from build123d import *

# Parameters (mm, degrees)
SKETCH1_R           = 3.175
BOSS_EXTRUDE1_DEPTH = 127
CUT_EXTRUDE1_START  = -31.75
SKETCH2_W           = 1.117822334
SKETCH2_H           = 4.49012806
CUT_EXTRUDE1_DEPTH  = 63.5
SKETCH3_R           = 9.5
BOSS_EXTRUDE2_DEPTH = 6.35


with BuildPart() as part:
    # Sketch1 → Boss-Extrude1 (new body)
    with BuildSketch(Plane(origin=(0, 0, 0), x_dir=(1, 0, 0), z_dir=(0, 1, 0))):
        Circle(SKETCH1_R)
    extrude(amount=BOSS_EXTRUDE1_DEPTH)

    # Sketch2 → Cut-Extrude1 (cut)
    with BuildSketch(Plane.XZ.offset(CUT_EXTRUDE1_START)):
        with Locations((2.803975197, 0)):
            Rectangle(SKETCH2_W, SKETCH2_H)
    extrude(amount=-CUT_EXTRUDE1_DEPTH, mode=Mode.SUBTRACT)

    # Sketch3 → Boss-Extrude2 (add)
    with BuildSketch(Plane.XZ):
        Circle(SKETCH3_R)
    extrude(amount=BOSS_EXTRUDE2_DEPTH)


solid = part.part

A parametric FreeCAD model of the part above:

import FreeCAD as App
import Part
import Sketcher
from FreeCAD import Vector
Q = App.Units.Quantity

doc = App.newDocument("Part")
params = doc.addObject("Spreadsheet::Sheet", "Params")
for row, (alias, value) in enumerate([
    ("sketch1_diameter", "0.25 in"),
    ("pad1_length", "5 in"),
    ("pocket1_length", "2.5 in"),
    ("pad2_length", "0.25 in"),
], start=1):
    params.set(f"A{row}", alias)
    params.set(f"B{row}", "=" + value)
    params.setAlias(f"B{row}", alias)

body = doc.addObject("PartDesign::Body", "Body")

# Sketch on XZ plane
sketch1 = body.newObject("Sketcher::SketchObject", "Sketch")
sketch1.AttachmentSupport = (doc.getObject("XZ_Plane"), [""])
sketch1.MapMode = "FlatFace"
sketch1.addGeometry(Part.Circle(Vector(0, 0, 0), Vector(0, 0, 1), 3.2), False)
sketch1.addConstraint([
    Sketcher.Constraint("Coincident", 0, 3, -1, 1),
    Sketcher.Constraint("Diameter", 0, Q("0.25 in")),
])
sketch1.setExpression("Constraints[1]", "Params.sketch1_diameter")
pad1 = body.newObject("PartDesign::Pad", "Pad")
pad1.Profile = sketch1
pad1.setExpression("Length", "Params.pad1_length")
pad1.Reversed = True

# Sketch on XZ plane
sketch2 = body.newObject("Sketcher::SketchObject", "Sketch001")
sketch2.AttachmentSupport = (doc.getObject("XZ_Plane"), [""])
sketch2.MapMode = "FlatFace"
sketch2.AttachmentOffset = App.Placement(Vector(0, 0, -1.25 * 25.4), App.Rotation())
sketch2.addGeometry([
    Part.LineSegment(Vector(2.2, 2.2, 0), Vector(2.2, -2.2, 0)),
    Part.LineSegment(Vector(2.2, -2.2, 0), Vector(3.4, -2.2, 0)),
    Part.LineSegment(Vector(3.4, -2.2, 0), Vector(3.4, 2.2, 0)),
    Part.LineSegment(Vector(3.4, 2.2, 0), Vector(2.2, 2.2, 0)),
], False)
sketch2.addConstraint([
    Sketcher.Constraint("Coincident", 0, 2, 1, 1),
    Sketcher.Constraint("Coincident", 1, 2, 2, 1),
    Sketcher.Constraint("Coincident", 2, 2, 3, 1),
    Sketcher.Constraint("Coincident", 3, 2, 0, 1),
    Sketcher.Constraint("Vertical", 0),
    Sketcher.Constraint("Horizontal", 1),
    Sketcher.Constraint("Vertical", 2),
    Sketcher.Constraint("Horizontal", 3),
    Sketcher.Constraint("DistanceY", 0, 2, 0, 1, Q("4.490128 mm")),
    Sketcher.Constraint("DistanceX", 1, 1, 1, 2, Q("1.117822 mm")),
    Sketcher.Constraint("DistanceX", -1, 1, 0, 2, Q("2.245064 mm")),
    Sketcher.Constraint("DistanceY", 0, 2, -1, 1, Q("2.245064 mm")),
])
pocket1 = body.newObject("PartDesign::Pocket", "Pocket")
pocket1.Profile = sketch2
pocket1.setExpression("Length", "Params.pocket1_length")

# Sketch on XZ plane
sketch3 = body.newObject("Sketcher::SketchObject", "Sketch002")
sketch3.AttachmentSupport = (doc.getObject("XZ_Plane"), [""])
sketch3.MapMode = "FlatFace"
sketch3.addGeometry(Part.Circle(Vector(0, 0, 0), Vector(0, 0, 1), 10), False)
sketch3.addConstraint([
    Sketcher.Constraint("Coincident", 0, 3, -1, 1),
    Sketcher.Constraint("Diameter", 0, Q("19 mm")),
])
pad2 = body.newObject("PartDesign::Pad", "Pad001")
pad2.Profile = sketch3
pad2.setExpression("Length", "Params.pad2_length")

doc.recompute()
